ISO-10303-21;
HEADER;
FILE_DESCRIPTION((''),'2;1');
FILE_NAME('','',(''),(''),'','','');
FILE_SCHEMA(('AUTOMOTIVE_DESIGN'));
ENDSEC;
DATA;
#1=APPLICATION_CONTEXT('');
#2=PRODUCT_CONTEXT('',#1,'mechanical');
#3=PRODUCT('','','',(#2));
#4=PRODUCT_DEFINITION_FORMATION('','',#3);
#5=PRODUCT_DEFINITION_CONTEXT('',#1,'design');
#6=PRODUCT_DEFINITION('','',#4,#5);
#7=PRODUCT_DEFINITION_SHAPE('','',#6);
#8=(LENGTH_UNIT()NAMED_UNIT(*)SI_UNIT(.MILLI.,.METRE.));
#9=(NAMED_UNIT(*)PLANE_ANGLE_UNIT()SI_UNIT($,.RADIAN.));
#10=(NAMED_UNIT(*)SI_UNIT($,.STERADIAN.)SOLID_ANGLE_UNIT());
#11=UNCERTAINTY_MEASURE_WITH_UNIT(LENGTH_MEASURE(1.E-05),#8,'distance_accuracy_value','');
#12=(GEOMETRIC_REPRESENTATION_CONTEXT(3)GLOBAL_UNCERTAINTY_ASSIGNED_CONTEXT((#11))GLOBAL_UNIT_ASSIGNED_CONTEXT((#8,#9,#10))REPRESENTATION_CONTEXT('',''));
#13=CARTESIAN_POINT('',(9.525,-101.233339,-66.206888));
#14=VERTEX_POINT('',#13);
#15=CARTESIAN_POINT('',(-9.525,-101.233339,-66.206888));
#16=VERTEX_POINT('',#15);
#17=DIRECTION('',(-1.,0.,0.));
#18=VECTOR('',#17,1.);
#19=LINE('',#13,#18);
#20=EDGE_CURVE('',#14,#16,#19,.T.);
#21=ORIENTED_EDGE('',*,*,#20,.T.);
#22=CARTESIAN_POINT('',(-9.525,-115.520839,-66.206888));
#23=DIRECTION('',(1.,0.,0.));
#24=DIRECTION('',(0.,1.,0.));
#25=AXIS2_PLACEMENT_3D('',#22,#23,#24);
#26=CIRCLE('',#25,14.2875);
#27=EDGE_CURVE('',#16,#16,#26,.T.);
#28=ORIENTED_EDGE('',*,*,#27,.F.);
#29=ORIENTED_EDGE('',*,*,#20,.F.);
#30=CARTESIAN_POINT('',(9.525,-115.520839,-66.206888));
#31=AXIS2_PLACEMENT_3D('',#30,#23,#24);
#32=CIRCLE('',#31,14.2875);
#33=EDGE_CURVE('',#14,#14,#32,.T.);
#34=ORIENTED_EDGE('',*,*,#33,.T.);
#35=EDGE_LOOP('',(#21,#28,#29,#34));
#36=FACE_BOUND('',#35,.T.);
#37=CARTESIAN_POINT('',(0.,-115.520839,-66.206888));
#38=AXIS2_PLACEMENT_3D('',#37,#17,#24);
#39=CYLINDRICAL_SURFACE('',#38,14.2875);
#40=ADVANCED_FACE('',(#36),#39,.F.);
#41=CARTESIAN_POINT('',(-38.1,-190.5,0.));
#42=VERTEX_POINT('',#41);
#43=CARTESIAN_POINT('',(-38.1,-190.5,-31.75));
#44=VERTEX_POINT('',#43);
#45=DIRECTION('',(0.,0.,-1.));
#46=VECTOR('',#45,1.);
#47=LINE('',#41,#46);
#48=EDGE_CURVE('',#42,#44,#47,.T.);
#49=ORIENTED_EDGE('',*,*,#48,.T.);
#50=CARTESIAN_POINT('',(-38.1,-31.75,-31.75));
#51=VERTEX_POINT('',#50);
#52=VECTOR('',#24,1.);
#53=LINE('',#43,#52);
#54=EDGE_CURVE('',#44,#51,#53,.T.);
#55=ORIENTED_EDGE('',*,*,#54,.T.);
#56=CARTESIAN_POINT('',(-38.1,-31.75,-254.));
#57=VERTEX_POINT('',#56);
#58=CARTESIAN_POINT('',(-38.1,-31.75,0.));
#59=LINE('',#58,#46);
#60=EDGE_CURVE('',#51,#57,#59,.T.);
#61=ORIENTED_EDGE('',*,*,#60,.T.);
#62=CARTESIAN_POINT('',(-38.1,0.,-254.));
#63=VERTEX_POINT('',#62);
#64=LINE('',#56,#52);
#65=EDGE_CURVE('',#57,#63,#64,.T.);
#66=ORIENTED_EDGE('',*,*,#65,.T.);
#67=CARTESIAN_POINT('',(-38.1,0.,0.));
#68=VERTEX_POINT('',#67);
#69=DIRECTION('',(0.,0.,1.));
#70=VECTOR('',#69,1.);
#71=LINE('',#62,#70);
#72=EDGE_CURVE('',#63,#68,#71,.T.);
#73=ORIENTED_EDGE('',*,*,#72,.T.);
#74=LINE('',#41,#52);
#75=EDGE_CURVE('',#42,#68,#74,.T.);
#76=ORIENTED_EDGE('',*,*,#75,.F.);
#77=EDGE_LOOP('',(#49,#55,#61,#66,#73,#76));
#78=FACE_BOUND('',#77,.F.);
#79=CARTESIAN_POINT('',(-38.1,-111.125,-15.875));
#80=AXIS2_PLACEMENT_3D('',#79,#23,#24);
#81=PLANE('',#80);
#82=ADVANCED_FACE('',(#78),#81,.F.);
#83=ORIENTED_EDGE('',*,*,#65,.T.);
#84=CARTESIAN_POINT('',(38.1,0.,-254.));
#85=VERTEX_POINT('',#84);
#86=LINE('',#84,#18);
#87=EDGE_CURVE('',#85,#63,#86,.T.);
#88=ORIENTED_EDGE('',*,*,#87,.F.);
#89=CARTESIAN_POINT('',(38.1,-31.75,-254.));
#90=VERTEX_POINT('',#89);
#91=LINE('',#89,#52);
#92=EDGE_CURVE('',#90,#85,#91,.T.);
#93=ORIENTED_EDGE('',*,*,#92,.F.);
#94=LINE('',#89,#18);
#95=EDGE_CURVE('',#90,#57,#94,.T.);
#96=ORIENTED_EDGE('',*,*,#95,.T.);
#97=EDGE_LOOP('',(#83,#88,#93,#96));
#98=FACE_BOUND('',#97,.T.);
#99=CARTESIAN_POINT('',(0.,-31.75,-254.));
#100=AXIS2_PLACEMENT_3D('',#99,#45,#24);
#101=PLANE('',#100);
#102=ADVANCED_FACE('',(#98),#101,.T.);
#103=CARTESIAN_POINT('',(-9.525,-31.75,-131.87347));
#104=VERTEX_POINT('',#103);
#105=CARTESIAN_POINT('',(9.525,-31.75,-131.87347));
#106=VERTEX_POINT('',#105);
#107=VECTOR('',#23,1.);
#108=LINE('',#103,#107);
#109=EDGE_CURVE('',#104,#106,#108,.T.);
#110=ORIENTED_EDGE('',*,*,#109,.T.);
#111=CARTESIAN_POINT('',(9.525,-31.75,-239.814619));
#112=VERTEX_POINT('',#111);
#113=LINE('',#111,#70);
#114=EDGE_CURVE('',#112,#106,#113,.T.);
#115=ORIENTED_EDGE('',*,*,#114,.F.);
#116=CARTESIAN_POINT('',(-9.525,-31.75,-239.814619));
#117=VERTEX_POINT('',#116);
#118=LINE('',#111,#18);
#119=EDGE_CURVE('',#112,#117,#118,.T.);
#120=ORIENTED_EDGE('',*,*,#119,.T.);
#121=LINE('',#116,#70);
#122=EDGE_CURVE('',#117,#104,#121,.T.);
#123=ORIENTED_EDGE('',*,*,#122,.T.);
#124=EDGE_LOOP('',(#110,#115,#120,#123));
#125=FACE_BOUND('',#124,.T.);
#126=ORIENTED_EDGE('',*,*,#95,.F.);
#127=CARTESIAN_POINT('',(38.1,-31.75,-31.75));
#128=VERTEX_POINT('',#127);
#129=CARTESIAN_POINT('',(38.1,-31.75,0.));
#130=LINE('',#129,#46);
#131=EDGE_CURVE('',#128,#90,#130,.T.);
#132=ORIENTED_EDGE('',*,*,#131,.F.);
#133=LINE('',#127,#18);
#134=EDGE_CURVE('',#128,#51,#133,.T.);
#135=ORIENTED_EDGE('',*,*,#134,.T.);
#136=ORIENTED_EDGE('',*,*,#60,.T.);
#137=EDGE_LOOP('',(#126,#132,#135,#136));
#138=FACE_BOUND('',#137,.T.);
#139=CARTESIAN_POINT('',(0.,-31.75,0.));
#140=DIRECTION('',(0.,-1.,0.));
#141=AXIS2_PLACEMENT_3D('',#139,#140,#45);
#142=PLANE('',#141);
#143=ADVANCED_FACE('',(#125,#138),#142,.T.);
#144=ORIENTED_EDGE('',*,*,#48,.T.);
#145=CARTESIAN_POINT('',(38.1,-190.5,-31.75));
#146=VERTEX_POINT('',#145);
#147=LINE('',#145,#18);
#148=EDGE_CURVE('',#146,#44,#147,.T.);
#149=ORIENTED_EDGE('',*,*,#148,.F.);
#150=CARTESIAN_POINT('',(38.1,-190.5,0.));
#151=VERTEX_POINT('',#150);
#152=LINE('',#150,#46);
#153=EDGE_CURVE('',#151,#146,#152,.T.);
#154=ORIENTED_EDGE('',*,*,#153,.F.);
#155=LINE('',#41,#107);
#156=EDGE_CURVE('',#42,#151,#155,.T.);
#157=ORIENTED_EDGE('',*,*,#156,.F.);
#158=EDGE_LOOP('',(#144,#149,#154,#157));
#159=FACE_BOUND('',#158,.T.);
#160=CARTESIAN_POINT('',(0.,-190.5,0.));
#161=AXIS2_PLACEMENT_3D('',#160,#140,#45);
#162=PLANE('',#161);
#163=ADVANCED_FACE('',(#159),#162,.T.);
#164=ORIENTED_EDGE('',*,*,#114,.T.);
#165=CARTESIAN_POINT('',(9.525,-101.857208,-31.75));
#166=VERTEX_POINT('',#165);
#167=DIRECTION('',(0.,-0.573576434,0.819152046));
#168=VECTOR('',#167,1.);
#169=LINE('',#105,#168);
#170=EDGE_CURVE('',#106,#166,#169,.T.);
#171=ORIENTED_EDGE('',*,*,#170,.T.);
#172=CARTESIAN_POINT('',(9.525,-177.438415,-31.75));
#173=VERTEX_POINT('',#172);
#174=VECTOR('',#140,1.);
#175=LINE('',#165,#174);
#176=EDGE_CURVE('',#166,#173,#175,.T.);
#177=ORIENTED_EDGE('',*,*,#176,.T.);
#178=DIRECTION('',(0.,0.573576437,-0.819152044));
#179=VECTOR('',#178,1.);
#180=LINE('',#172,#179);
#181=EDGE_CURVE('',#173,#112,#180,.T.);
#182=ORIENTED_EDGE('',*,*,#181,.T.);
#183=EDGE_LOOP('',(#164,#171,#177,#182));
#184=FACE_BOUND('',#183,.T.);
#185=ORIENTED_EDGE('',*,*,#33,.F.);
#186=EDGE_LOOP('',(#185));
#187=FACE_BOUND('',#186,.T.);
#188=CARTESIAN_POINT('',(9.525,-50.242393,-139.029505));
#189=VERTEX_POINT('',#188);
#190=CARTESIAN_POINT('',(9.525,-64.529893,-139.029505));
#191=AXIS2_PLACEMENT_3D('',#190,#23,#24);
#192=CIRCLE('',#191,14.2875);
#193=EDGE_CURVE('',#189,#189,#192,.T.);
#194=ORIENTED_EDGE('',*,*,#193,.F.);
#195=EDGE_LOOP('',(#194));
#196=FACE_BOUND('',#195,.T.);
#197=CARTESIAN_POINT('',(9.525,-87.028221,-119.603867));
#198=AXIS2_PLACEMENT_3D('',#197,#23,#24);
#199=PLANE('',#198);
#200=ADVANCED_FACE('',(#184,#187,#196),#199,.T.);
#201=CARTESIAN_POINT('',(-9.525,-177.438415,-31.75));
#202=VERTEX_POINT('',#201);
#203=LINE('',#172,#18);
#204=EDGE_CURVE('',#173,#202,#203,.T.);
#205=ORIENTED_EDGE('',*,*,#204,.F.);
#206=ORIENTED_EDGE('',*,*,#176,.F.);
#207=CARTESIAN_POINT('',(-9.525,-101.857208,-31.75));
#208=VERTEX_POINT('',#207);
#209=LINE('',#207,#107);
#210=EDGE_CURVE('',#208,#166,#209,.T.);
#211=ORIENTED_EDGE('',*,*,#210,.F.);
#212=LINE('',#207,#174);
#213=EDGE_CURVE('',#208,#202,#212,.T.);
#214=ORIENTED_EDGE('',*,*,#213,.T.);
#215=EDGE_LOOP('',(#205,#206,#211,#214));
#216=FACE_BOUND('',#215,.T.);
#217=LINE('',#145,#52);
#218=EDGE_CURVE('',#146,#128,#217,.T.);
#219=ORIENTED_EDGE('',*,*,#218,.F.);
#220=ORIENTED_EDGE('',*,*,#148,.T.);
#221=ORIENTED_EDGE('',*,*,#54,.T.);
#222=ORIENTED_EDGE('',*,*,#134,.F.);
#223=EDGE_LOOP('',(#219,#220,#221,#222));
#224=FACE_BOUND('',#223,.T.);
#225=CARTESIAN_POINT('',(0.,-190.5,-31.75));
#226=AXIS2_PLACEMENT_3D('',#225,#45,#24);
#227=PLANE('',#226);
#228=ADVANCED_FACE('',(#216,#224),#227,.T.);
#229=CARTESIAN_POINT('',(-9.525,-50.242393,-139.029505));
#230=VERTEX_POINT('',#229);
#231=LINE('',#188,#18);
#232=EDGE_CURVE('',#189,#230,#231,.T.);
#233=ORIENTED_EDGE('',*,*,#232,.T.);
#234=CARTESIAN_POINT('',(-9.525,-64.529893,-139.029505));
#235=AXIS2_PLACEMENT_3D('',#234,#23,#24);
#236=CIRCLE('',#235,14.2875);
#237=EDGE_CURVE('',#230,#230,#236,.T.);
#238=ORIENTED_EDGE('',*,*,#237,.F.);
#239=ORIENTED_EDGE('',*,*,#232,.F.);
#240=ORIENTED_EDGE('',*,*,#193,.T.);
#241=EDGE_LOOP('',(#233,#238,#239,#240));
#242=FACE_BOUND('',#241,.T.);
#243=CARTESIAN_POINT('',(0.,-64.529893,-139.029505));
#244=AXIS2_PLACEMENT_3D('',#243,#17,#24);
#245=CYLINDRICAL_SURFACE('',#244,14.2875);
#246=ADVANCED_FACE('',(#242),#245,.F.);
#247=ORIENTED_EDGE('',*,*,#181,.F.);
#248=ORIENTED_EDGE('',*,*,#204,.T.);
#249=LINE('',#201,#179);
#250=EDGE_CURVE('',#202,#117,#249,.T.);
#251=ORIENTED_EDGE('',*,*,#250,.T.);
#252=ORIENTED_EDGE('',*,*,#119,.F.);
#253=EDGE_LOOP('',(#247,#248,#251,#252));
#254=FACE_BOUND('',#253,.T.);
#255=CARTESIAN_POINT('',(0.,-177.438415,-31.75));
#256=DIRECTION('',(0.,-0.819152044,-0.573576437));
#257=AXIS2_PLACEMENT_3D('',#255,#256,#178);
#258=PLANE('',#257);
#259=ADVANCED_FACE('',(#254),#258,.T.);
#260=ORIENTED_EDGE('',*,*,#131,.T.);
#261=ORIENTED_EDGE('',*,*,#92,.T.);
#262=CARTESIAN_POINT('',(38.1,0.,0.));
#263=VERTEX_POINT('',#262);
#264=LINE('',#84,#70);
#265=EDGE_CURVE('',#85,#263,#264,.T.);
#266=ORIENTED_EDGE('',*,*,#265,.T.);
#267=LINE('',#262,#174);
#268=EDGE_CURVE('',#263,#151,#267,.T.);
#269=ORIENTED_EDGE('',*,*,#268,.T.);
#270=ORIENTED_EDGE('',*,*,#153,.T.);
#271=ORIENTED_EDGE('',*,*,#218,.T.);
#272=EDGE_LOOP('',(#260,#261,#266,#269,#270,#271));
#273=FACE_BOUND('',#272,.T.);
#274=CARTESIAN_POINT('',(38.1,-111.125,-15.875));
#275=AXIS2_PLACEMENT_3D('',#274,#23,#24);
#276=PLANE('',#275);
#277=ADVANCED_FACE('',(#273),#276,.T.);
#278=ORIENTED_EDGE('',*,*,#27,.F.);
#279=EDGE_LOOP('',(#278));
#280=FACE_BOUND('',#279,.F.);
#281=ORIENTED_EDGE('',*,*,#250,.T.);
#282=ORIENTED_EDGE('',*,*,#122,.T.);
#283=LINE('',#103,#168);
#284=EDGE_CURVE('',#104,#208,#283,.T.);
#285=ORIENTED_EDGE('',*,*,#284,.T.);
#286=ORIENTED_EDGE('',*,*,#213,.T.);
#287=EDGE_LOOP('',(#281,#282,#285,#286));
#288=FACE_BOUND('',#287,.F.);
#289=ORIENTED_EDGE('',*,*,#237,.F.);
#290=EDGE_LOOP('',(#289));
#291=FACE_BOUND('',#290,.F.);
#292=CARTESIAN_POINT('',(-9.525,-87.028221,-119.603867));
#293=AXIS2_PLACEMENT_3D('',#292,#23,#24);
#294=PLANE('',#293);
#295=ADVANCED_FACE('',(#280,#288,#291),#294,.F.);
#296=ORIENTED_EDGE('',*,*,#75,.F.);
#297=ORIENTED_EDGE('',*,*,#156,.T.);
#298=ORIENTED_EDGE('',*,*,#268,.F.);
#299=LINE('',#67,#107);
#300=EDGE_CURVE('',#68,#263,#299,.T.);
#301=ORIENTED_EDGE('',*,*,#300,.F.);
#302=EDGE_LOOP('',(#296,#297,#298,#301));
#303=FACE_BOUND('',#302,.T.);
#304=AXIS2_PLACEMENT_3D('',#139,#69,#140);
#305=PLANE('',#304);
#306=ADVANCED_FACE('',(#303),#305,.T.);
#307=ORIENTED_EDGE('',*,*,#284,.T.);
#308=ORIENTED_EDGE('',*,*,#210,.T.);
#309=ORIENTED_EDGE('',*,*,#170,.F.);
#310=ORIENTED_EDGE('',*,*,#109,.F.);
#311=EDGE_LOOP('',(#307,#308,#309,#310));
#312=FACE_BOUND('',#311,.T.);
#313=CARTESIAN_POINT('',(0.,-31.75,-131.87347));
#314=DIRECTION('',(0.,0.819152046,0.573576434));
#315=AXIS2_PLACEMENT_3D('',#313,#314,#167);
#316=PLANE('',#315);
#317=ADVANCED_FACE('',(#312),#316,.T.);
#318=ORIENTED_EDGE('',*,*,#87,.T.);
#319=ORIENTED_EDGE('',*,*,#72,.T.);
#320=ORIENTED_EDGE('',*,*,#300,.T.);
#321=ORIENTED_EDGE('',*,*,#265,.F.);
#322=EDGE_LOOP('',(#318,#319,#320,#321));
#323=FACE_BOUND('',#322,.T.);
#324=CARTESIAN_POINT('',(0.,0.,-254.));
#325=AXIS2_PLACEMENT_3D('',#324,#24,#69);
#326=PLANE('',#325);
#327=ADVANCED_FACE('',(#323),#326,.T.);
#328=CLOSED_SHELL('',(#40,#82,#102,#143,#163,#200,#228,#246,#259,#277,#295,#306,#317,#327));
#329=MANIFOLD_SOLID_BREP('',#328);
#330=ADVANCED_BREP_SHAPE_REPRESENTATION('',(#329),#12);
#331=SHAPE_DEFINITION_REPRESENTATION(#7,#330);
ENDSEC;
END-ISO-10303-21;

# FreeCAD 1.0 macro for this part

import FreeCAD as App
import Part
import Sketcher
Q = App.Units.Quantity


def add_polygon(sketch, points):
    """Adds a closed chain of lines whose ends are joined by coincident constraints."""
    first, n = sketch.GeometryCount, len(points)
    for a, b in zip(points, points[1:] + points[:1]):
        sketch.addGeometry(Part.LineSegment(App.Vector(*a, 0), App.Vector(*b, 0)), False)
    for i in range(n):
        sketch.addConstraint(Sketcher.Constraint("Coincident", first + i, 2, first + (i + 1) % n, 1))

doc = App.newDocument("Part")
body = doc.addObject("PartDesign::Body", "Body")

# Sketch on YZ plane
sketch1 = doc.addObject("Sketcher::SketchObject", "Sketch")
body.addObject(sketch1)
sketch1.AttachmentSupport = (doc.YZ_Plane, [""])
sketch1.MapMode = "FlatFace"
add_polygon(sketch1, [(0, -254), (0, 0), (-32, 0), (-32, -254)])  # lines 0-3
sketch1.addConstraint(Sketcher.Constraint("Vertical", 0))
sketch1.addConstraint(Sketcher.Constraint("Horizontal", 1))
sketch1.addConstraint(Sketcher.Constraint("Vertical", 2))
sketch1.addConstraint(Sketcher.Constraint("Horizontal", 3))
sketch1.addConstraint(Sketcher.Constraint("Coincident", 0, 2, -1, 1))
sketch1.addConstraint(Sketcher.Constraint("DistanceY", 0, 1, 0, 2, Q("10 in")))
sketch1.addConstraint(Sketcher.Constraint("DistanceX", 1, 2, 1, 1, Q("1.25 in")))
pad1 = doc.addObject("PartDesign::Pad", "Pad")
body.addObject(pad1)
pad1.Profile = sketch1
pad1.Length = Q("3 in")
pad1.Midplane = True

# Sketch on YZ plane
sketch2 = doc.addObject("Sketcher::SketchObject", "Sketch001")
body.addObject(sketch2)
sketch2.AttachmentSupport = (doc.YZ_Plane, [""])
sketch2.MapMode = "FlatFace"
add_polygon(sketch2, [(-32, -32), (-32, 0), (-190, 0), (-190, -32)])  # lines 0-3
sketch2.addConstraint(Sketcher.Constraint("Vertical", 0))
sketch2.addConstraint(Sketcher.Constraint("Horizontal", 1))
sketch2.addConstraint(Sketcher.Constraint("Vertical", 2))
sketch2.addConstraint(Sketcher.Constraint("Horizontal", 3))
sketch2.addConstraint(Sketcher.Constraint("PointOnObject", 0, 2, -1))
sketch2.addConstraint(Sketcher.Constraint("DistanceX", 1, 2, 1, 1, Q("6.25 in")))
sketch2.addConstraint(Sketcher.Constraint("DistanceY", 0, 1, 0, 2, Q("1.25 in")))
sketch2.addConstraint(Sketcher.Constraint("DistanceX", 1, 2, -1, 1, Q("7.5 in")))
pad2 = doc.addObject("PartDesign::Pad", "Pad001")
body.addObject(pad2)
pad2.Profile = sketch2
pad2.Length = Q("3 in")
pad2.Midplane = True

# Sketch on YZ plane
sketch3 = doc.addObject("Sketcher::SketchObject", "Sketch002")
body.addObject(sketch3)
sketch3.AttachmentSupport = (doc.YZ_Plane, [""])
sketch3.MapMode = "FlatFace"
add_polygon(sketch3, [(-32, -240), (-32, -132), (-102, -32), (-177, -32)])  # lines 0-3
sketch3.addGeometry(Part.Circle(App.Vector(-65, -139, 0), App.Vector(0, 0, 1), 14), False)  # 4
sketch3.addGeometry(Part.Circle(App.Vector(-116, -66, 0), App.Vector(0, 0, 1), 14), False)  # 5
sketch3.addConstraint(Sketcher.Constraint("Vertical", 0))
sketch3.addConstraint(Sketcher.Constraint("Horizontal", 2))
sketch3.addConstraint(Sketcher.Constraint("Equal", 4, 5))
sketch3.addConstraint(Sketcher.Constraint("Parallel", 1, 3))
sketch3.addConstraint(Sketcher.Constraint("Distance", 3, Q("10 in")))
sketch3.addConstraint(Sketcher.Constraint("Diameter", 4, Q("1.125 in")))
sketch3.addConstraint(Sketcher.Constraint("Angle", 1, Q("125 deg")))
sketch3.addConstraint(Sketcher.Constraint("DistanceX", 0, 2, -1, 1, Q("1.25 in")))
sketch3.addConstraint(Sketcher.Constraint("DistanceY", 1, 2, -1, 1, Q("1.25 in")))
sketch3.addConstraint(Sketcher.Constraint("DistanceX", 2, 2, 5, 3, Q("2.4376998 in")))
sketch3.addConstraint(Sketcher.Constraint("DistanceY", 0, 1, 0, 2, Q("107.941149 mm")))
sketch3.addConstraint(Sketcher.Constraint("DistanceY", 5, 3, -1, 1, Q("66.206888 mm")))
sketch3.addConstraint(Sketcher.Constraint("DistanceX", 2, 2, 4, 3, Q("112.908522 mm")))
sketch3.addConstraint(Sketcher.Constraint("DistanceY", 4, 3, -1, 1, Q("139.029505 mm")))
pad3 = doc.addObject("PartDesign::Pad", "Pad002")
body.addObject(pad3)
pad3.Profile = sketch3
pad3.Length = Q("0.75 in")
pad3.Midplane = True

doc.recompute()
